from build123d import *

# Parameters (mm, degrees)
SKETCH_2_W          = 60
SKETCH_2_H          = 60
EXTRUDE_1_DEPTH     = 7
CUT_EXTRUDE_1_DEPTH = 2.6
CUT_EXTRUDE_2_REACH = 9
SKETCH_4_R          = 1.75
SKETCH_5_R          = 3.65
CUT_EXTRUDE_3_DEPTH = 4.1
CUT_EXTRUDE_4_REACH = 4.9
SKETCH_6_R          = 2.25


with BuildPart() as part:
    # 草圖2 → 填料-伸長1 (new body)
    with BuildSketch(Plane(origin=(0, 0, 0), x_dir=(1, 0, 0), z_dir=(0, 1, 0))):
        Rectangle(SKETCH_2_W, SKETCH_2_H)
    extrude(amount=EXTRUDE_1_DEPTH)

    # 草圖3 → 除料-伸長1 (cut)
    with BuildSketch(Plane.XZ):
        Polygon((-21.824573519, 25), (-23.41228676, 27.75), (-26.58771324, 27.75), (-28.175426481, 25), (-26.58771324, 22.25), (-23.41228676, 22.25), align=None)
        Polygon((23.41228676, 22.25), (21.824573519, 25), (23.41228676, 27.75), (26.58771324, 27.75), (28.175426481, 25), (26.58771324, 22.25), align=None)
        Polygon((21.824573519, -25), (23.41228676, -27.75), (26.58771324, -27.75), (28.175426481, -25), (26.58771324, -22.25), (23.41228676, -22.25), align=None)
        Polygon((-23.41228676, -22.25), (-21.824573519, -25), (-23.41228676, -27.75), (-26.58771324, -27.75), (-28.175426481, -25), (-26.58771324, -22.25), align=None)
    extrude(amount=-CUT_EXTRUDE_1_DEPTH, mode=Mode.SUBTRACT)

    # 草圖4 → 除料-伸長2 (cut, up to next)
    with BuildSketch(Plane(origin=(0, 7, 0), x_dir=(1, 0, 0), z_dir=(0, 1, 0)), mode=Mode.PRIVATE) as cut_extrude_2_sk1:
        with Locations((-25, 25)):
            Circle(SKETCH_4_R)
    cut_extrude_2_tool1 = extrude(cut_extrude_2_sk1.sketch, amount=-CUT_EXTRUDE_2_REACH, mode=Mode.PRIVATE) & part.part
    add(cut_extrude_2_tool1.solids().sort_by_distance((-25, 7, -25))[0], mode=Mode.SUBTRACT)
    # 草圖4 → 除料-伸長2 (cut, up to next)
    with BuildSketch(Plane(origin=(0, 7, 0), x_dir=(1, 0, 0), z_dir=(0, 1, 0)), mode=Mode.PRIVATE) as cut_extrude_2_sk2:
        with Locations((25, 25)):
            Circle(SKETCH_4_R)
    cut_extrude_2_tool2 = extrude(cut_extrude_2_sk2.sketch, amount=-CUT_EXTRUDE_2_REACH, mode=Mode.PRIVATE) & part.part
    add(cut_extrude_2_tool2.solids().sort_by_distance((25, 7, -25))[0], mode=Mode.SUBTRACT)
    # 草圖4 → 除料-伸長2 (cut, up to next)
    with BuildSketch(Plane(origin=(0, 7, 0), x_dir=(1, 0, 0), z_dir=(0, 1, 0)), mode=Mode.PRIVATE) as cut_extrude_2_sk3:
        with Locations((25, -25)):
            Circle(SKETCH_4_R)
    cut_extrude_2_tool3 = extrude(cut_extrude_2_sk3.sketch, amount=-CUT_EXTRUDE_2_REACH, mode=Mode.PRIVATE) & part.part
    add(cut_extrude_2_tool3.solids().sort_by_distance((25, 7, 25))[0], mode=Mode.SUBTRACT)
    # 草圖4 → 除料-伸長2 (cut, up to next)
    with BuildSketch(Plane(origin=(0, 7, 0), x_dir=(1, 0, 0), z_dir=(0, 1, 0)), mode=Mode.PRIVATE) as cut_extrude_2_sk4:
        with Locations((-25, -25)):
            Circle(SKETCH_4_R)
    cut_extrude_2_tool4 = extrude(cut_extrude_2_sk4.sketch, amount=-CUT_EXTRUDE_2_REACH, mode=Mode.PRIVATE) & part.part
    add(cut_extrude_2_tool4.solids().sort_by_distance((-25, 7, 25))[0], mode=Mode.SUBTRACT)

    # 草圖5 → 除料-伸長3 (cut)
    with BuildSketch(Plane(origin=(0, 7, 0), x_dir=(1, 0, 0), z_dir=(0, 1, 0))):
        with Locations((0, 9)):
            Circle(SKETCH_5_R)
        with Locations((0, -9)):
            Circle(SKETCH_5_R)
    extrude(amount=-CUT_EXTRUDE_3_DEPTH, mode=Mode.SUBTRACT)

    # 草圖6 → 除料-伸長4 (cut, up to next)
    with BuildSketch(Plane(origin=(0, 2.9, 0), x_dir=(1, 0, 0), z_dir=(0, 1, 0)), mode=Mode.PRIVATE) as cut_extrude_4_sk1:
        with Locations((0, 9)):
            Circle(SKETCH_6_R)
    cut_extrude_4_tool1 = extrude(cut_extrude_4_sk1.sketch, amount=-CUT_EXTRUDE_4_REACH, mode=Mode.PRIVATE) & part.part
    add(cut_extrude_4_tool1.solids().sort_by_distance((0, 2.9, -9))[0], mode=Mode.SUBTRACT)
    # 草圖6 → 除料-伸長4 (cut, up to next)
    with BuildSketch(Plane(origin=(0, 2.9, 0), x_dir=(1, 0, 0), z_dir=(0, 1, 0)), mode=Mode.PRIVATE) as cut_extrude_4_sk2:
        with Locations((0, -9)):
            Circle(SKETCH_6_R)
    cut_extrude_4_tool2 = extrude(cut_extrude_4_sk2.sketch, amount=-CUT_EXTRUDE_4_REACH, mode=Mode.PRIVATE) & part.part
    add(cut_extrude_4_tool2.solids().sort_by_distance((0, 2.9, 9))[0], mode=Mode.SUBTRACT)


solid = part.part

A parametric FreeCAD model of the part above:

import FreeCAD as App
import Part
import Sketcher
Q = App.Units.Quantity


def add_polygon(sketch, points):
    """Adds a closed chain of lines whose ends are joined by coincident constraints."""
    first, n = sketch.GeometryCount, len(points)
    for a, b in zip(points, points[1:] + points[:1]):
        sketch.addGeometry(Part.LineSegment(App.Vector(*a, 0), App.Vector(*b, 0)), False)
    for i in range(n):
        sketch.addConstraint(Sketcher.Constraint("Coincident", first + i, 2, first + (i + 1) % n, 1))

doc = App.newDocument("Part")
params = doc.addObject("Spreadsheet::Sheet", "Params")
for row, (alias, value) in enumerate([
    ("sketch1_width", "60 mm"),
    ("pad1_length", "7 mm"),
    ("pocket1_length", "2.6 mm"),
    ("sketch3_diameter", "3.5 mm"),
    ("sketch4_diameter", "3.5 mm"),
    ("sketch5_diameter", "3.5 mm"),
    ("sketch6_diameter", "3.5 mm"),
    ("sketch7_diameter", "7.3 mm"),
    ("pocket6_length", "4.1 mm"),
    ("sketch8_diameter", "4.5 mm"),
    ("sketch9_diameter", "4.5 mm"),
], start=1):
    params.set(f"A{row}", alias)
    params.set(f"B{row}", "=" + value)
    params.setAlias(f"B{row}", alias)

body = doc.addObject("PartDesign::Body", "Body")

# Sketch on XZ plane
sketch1 = doc.addObject("Sketcher::SketchObject", "Sketch")
body.addObject(sketch1)
sketch1.AttachmentSupport = (doc.XZ_Plane, [""])
sketch1.MapMode = "FlatFace"
add_polygon(sketch1, [(-30, -30), (-30, 30), (30, 30), (30, -30)])  # lines 0-3
sketch1.addConstraint([
    Sketcher.Constraint("Vertical", 0),
    Sketcher.Constraint("Horizontal", 1),
    Sketcher.Constraint("Vertical", 2),
    Sketcher.Constraint("Horizontal", 3),
    Sketcher.Constraint("Symmetric", 0, 2, 2, 2, -1, 1),
    Sketcher.Constraint("Equal", 3, 0),
    Sketcher.Constraint("DistanceX", 1, 1, 1, 2, Q("60 mm")),
])
sketch1.setExpression("Constraints[10]", "Params.sketch1_width")
pad1 = doc.addObject("PartDesign::Pad", "Pad")
body.addObject(pad1)
pad1.Profile = sketch1
pad1.setExpression("Length", "Params.pad1_length")
pad1.Reversed = True

# Sketch on XZ plane
sketch2 = doc.addObject("Sketcher::SketchObject", "Sketch001")
body.addObject(sketch2)
sketch2.AttachmentSupport = (doc.XZ_Plane, [""])
sketch2.MapMode = "FlatFace"
add_polygon(sketch2, [(-21.8, 25), (-23.4, 27.8), (-26.6, 27.8), (-28.2, 25), (-26.6, 22.2), (-23.4, 22.2)])  # lines 0-5
add_polygon(sketch2, [(21.8, 25), (23.4, 22.2), (26.6, 22.2), (28.2, 25), (26.6, 27.8), (23.4, 27.8)])  # lines 6-11
add_polygon(sketch2, [(21.8, -25), (23.4, -27.8), (26.6, -27.8), (28.2, -25), (26.6, -22.2), (23.4, -22.2)])  # lines 12-17
add_polygon(sketch2, [(-21.8, -25), (-23.4, -22.2), (-26.6, -22.2), (-28.2, -25), (-26.6, -27.8), (-23.4, -27.8)])  # lines 18-23
sketch2.addConstraint([
    Sketcher.Constraint("Horizontal", 1),
    Sketcher.Constraint("Horizontal", 4),
    Sketcher.Constraint("Horizontal", 7),
    Sketcher.Constraint("Horizontal", 10),
    Sketcher.Constraint("Horizontal", 13),
    Sketcher.Constraint("Horizontal", 16),
    Sketcher.Constraint("Horizontal", 19),
    Sketcher.Constraint("Horizontal", 22),
    Sketcher.Constraint("Symmetric", 0, 2, 12, 2, -1, 1),
    Sketcher.Constraint("Symmetric", 2, 2, 14, 2, -1, 1),
    Sketcher.Constraint("Symmetric", 3, 2, 15, 2, -1, 1),
    Sketcher.Constraint("Symmetric", 5, 2, 17, 2, -1, 1),
    Sketcher.Constraint("Symmetric", 6, 2, 18, 2, -1, 1),
    Sketcher.Constraint("Symmetric", 8, 2, 20, 2, -1, 1),
    Sketcher.Constraint("Symmetric", 9, 2, 21, 2, -1, 1),
    Sketcher.Constraint("Symmetric", 11, 2, 23, 2, -1, 1),
    Sketcher.Constraint("Symmetric", 4, 2, 6, 2, -2),
    Sketcher.Constraint("Symmetric", 2, 2, 8, 2, -2),
    Sketcher.Constraint("Symmetric", 1, 2, 9, 2, -2),
    Sketcher.Constraint("Symmetric", 5, 2, 11, 2, -2),
    Sketcher.Constraint("Parallel", 0, 3),
    Sketcher.Constraint("Parallel", 2, 5),
    Sketcher.Constraint("Parallel", 3, 6),
    Sketcher.Constraint("Parallel", 5, 8),
    Sketcher.Constraint("Parallel", 8, 11),
    Sketcher.Constraint("Parallel", 11, 14),
    Sketcher.Constraint("Parallel", 14, 17),
    Sketcher.Constraint("Parallel", 17, 20),
    Sketcher.Constraint("Parallel", 20, 23),
    Sketcher.Constraint("Horizontal", 2, 2, 5, 2),
    Sketcher.Constraint("Vertical", 1, 2, 3, 2),
    Sketcher.Constraint("Angle", 0, Q("120 deg")),
    Sketcher.Constraint("DistanceY", -1, 1, 2, 2, Q("25 mm")),
    Sketcher.Constraint("DistanceX", 3, 2, 6, 2, Q("50 mm")),
    Sketcher.Constraint("DistanceY", 3, 2, 1, 2, Q("5.5 mm")),
    Sketcher.Constraint("DistanceX", 1, 2, 1, 1, Q("3.175426 mm")),
])
pocket1 = doc.addObject("PartDesign::Pocket", "Pocket")
body.addObject(pocket1)
pocket1.Profile = sketch2
pocket1.setExpression("Length", "Params.pocket1_length")

# Sketch on XZ plane
sketch3 = doc.addObject("Sketcher::SketchObject", "Sketch002")
body.addObject(sketch3)
sketch3.AttachmentSupport = (doc.XZ_Plane, [""])
sketch3.MapMode = "FlatFace"
sketch3.AttachmentOffset = App.Placement(App.Vector(0, 0, -7), App.Rotation())
sketch3.addGeometry(Part.Circle(App.Vector(-25, -25, 0), App.Vector(0, 0, 1), 1.8), False)
sketch3.addConstraint([
    Sketcher.Constraint("Diameter", 0, Q("3.5 mm")),
    Sketcher.Constraint("DistanceX", 0, 3, -1, 1, Q("25 mm")),
    Sketcher.Constraint("DistanceY", 0, 3, -1, 1, Q("25 mm")),
])
sketch3.setExpression("Constraints[0]", "Params.sketch3_diameter")
pocket2 = doc.addObject("PartDesign::Pocket", "Pocket001")
body.addObject(pocket2)
pocket2.Profile = sketch3
pocket2.Type = "UpToFirst"
pocket2.Reversed = True

# Sketch on XZ plane
sketch4 = doc.addObject("Sketcher::SketchObject", "Sketch003")
body.addObject(sketch4)
sketch4.AttachmentSupport = (doc.XZ_Plane, [""])
sketch4.MapMode = "FlatFace"
sketch4.AttachmentOffset = App.Placement(App.Vector(0, 0, -7), App.Rotation())
sketch4.addGeometry(Part.Circle(App.Vector(25, -25, 0), App.Vector(0, 0, 1), 1.8), False)
sketch4.addConstraint([
    Sketcher.Constraint("Diameter", 0, Q("3.5 mm")),
    Sketcher.Constraint("DistanceX", -1, 1, 0, 3, Q("25 mm")),
    Sketcher.Constraint("DistanceY", 0, 3, -1, 1, Q("25 mm")),
])
sketch4.setExpression("Constraints[0]", "Params.sketch4_diameter")
pocket3 = doc.addObject("PartDesign::Pocket", "Pocket002")
body.addObject(pocket3)
pocket3.Profile = sketch4
pocket3.Type = "UpToFirst"
pocket3.Reversed = True

# Sketch on XZ plane
sketch5 = doc.addObject("Sketcher::SketchObject", "Sketch004")
body.addObject(sketch5)
sketch5.AttachmentSupport = (doc.XZ_Plane, [""])
sketch5.MapMode = "FlatFace"
sketch5.AttachmentOffset = App.Placement(App.Vector(0, 0, -7), App.Rotation())
sketch5.addGeometry(Part.Circle(App.Vector(25, 25, 0), App.Vector(0, 0, 1), 1.8), False)
sketch5.addConstraint([
    Sketcher.Constraint("Diameter", 0, Q("3.5 mm")),
    Sketcher.Constraint("DistanceX", -1, 1, 0, 3, Q("25 mm")),
    Sketcher.Constraint("DistanceY", -1, 1, 0, 3, Q("25 mm")),
])
sketch5.setExpression("Constraints[0]", "Params.sketch5_diameter")
pocket4 = doc.addObject("PartDesign::Pocket", "Pocket003")
body.addObject(pocket4)
pocket4.Profile = sketch5
pocket4.Type = "UpToFirst"
pocket4.Reversed = True

# Sketch on XZ plane
sketch6 = doc.addObject("Sketcher::SketchObject", "Sketch005")
body.addObject(sketch6)
sketch6.AttachmentSupport = (doc.XZ_Plane, [""])
sketch6.MapMode = "FlatFace"
sketch6.AttachmentOffset = App.Placement(App.Vector(0, 0, -7), App.Rotation())
sketch6.addGeometry(Part.Circle(App.Vector(-25, 25, 0), App.Vector(0, 0, 1), 1.8), False)
sketch6.addConstraint([
    Sketcher.Constraint("Diameter", 0, Q("3.5 mm")),
    Sketcher.Constraint("DistanceX", 0, 3, -1, 1, Q("25 mm")),
    Sketcher.Constraint("DistanceY", -1, 1, 0, 3, Q("25 mm")),
])
sketch6.setExpression("Constraints[0]", "Params.sketch6_diameter")
pocket5 = doc.addObject("PartDesign::Pocket", "Pocket004")
body.addObject(pocket5)
pocket5.Profile = sketch6
pocket5.Type = "UpToFirst"
pocket5.Reversed = True

# Sketch on XZ plane
sketch7 = doc.addObject("Sketcher::SketchObject", "Sketch006")
body.addObject(sketch7)
sketch7.AttachmentSupport = (doc.XZ_Plane, [""])
sketch7.MapMode = "FlatFace"
sketch7.AttachmentOffset = App.Placement(App.Vector(0, 0, -7), App.Rotation())
sketch7.addGeometry([
    Part.Circle(App.Vector(0, -9, 0), App.Vector(0, 0, 1), 3.6),
    Part.Circle(App.Vector(0, 9, 0), App.Vector(0, 0, 1), 3.6),
], False)
sketch7.addConstraint([
    Sketcher.Constraint("Equal", 0, 1),
    Sketcher.Constraint("Symmetric", 0, 3, 1, 3, -1, 1),
    Sketcher.Constraint("PointOnObject", 0, 3, -2),
    Sketcher.Constraint("Diameter", 0, Q("7.3 mm")),
    Sketcher.Constraint("DistanceY", 0, 3, -1, 1, Q("9 mm")),
])
sketch7.setExpression("Constraints[3]", "Params.sketch7_diameter")
pocket6 = doc.addObject("PartDesign::Pocket", "Pocket005")
body.addObject(pocket6)
pocket6.Profile = sketch7
pocket6.setExpression("Length", "Params.pocket6_length")
pocket6.Reversed = True

# Sketch on XZ plane
sketch8 = doc.addObject("Sketcher::SketchObject", "Sketch007")
body.addObject(sketch8)
sketch8.AttachmentSupport = (doc.XZ_Plane, [""])
sketch8.MapMode = "FlatFace"
sketch8.AttachmentOffset = App.Placement(App.Vector(0, 0, -2.9), App.Rotation())
sketch8.addGeometry(Part.Circle(App.Vector(0, -9, 0), App.Vector(0, 0, 1), 2.2), False)
sketch8.addConstraint([
    Sketcher.Constraint("PointOnObject", 0, 3, -2),
    Sketcher.Constraint("Diameter", 0, Q("4.5 mm")),
    Sketcher.Constraint("DistanceY", 0, 3, -1, 1, Q("9 mm")),
])
sketch8.setExpression("Constraints[1]", "Params.sketch8_diameter")
pocket7 = doc.addObject("PartDesign::Pocket", "Pocket006")
body.addObject(pocket7)
pocket7.Profile = sketch8
pocket7.Type = "UpToFirst"
pocket7.Reversed = True

# Sketch on XZ plane
sketch9 = doc.addObject("Sketcher::SketchObject", "Sketch008")
body.addObject(sketch9)
sketch9.AttachmentSupport = (doc.XZ_Plane, [""])
sketch9.MapMode = "FlatFace"
sketch9.AttachmentOffset = App.Placement(App.Vector(0, 0, -2.9), App.Rotation())
sketch9.addGeometry(Part.Circle(App.Vector(0, 9, 0), App.Vector(0, 0, 1), 2.2), False)
sketch9.addConstraint([
    Sketcher.Constraint("PointOnObject", 0, 3, -2),
    Sketcher.Constraint("Diameter", 0, Q("4.5 mm")),
    Sketcher.Constraint("DistanceY", -1, 1, 0, 3, Q("9 mm")),
])
sketch9.setExpression("Constraints[1]", "Params.sketch9_diameter")
pocket8 = doc.addObject("PartDesign::Pocket", "Pocket007")
body.addObject(pocket8)
pocket8.Profile = sketch9
pocket8.Type = "UpToFirst"
pocket8.Reversed = True

doc.recompute()
